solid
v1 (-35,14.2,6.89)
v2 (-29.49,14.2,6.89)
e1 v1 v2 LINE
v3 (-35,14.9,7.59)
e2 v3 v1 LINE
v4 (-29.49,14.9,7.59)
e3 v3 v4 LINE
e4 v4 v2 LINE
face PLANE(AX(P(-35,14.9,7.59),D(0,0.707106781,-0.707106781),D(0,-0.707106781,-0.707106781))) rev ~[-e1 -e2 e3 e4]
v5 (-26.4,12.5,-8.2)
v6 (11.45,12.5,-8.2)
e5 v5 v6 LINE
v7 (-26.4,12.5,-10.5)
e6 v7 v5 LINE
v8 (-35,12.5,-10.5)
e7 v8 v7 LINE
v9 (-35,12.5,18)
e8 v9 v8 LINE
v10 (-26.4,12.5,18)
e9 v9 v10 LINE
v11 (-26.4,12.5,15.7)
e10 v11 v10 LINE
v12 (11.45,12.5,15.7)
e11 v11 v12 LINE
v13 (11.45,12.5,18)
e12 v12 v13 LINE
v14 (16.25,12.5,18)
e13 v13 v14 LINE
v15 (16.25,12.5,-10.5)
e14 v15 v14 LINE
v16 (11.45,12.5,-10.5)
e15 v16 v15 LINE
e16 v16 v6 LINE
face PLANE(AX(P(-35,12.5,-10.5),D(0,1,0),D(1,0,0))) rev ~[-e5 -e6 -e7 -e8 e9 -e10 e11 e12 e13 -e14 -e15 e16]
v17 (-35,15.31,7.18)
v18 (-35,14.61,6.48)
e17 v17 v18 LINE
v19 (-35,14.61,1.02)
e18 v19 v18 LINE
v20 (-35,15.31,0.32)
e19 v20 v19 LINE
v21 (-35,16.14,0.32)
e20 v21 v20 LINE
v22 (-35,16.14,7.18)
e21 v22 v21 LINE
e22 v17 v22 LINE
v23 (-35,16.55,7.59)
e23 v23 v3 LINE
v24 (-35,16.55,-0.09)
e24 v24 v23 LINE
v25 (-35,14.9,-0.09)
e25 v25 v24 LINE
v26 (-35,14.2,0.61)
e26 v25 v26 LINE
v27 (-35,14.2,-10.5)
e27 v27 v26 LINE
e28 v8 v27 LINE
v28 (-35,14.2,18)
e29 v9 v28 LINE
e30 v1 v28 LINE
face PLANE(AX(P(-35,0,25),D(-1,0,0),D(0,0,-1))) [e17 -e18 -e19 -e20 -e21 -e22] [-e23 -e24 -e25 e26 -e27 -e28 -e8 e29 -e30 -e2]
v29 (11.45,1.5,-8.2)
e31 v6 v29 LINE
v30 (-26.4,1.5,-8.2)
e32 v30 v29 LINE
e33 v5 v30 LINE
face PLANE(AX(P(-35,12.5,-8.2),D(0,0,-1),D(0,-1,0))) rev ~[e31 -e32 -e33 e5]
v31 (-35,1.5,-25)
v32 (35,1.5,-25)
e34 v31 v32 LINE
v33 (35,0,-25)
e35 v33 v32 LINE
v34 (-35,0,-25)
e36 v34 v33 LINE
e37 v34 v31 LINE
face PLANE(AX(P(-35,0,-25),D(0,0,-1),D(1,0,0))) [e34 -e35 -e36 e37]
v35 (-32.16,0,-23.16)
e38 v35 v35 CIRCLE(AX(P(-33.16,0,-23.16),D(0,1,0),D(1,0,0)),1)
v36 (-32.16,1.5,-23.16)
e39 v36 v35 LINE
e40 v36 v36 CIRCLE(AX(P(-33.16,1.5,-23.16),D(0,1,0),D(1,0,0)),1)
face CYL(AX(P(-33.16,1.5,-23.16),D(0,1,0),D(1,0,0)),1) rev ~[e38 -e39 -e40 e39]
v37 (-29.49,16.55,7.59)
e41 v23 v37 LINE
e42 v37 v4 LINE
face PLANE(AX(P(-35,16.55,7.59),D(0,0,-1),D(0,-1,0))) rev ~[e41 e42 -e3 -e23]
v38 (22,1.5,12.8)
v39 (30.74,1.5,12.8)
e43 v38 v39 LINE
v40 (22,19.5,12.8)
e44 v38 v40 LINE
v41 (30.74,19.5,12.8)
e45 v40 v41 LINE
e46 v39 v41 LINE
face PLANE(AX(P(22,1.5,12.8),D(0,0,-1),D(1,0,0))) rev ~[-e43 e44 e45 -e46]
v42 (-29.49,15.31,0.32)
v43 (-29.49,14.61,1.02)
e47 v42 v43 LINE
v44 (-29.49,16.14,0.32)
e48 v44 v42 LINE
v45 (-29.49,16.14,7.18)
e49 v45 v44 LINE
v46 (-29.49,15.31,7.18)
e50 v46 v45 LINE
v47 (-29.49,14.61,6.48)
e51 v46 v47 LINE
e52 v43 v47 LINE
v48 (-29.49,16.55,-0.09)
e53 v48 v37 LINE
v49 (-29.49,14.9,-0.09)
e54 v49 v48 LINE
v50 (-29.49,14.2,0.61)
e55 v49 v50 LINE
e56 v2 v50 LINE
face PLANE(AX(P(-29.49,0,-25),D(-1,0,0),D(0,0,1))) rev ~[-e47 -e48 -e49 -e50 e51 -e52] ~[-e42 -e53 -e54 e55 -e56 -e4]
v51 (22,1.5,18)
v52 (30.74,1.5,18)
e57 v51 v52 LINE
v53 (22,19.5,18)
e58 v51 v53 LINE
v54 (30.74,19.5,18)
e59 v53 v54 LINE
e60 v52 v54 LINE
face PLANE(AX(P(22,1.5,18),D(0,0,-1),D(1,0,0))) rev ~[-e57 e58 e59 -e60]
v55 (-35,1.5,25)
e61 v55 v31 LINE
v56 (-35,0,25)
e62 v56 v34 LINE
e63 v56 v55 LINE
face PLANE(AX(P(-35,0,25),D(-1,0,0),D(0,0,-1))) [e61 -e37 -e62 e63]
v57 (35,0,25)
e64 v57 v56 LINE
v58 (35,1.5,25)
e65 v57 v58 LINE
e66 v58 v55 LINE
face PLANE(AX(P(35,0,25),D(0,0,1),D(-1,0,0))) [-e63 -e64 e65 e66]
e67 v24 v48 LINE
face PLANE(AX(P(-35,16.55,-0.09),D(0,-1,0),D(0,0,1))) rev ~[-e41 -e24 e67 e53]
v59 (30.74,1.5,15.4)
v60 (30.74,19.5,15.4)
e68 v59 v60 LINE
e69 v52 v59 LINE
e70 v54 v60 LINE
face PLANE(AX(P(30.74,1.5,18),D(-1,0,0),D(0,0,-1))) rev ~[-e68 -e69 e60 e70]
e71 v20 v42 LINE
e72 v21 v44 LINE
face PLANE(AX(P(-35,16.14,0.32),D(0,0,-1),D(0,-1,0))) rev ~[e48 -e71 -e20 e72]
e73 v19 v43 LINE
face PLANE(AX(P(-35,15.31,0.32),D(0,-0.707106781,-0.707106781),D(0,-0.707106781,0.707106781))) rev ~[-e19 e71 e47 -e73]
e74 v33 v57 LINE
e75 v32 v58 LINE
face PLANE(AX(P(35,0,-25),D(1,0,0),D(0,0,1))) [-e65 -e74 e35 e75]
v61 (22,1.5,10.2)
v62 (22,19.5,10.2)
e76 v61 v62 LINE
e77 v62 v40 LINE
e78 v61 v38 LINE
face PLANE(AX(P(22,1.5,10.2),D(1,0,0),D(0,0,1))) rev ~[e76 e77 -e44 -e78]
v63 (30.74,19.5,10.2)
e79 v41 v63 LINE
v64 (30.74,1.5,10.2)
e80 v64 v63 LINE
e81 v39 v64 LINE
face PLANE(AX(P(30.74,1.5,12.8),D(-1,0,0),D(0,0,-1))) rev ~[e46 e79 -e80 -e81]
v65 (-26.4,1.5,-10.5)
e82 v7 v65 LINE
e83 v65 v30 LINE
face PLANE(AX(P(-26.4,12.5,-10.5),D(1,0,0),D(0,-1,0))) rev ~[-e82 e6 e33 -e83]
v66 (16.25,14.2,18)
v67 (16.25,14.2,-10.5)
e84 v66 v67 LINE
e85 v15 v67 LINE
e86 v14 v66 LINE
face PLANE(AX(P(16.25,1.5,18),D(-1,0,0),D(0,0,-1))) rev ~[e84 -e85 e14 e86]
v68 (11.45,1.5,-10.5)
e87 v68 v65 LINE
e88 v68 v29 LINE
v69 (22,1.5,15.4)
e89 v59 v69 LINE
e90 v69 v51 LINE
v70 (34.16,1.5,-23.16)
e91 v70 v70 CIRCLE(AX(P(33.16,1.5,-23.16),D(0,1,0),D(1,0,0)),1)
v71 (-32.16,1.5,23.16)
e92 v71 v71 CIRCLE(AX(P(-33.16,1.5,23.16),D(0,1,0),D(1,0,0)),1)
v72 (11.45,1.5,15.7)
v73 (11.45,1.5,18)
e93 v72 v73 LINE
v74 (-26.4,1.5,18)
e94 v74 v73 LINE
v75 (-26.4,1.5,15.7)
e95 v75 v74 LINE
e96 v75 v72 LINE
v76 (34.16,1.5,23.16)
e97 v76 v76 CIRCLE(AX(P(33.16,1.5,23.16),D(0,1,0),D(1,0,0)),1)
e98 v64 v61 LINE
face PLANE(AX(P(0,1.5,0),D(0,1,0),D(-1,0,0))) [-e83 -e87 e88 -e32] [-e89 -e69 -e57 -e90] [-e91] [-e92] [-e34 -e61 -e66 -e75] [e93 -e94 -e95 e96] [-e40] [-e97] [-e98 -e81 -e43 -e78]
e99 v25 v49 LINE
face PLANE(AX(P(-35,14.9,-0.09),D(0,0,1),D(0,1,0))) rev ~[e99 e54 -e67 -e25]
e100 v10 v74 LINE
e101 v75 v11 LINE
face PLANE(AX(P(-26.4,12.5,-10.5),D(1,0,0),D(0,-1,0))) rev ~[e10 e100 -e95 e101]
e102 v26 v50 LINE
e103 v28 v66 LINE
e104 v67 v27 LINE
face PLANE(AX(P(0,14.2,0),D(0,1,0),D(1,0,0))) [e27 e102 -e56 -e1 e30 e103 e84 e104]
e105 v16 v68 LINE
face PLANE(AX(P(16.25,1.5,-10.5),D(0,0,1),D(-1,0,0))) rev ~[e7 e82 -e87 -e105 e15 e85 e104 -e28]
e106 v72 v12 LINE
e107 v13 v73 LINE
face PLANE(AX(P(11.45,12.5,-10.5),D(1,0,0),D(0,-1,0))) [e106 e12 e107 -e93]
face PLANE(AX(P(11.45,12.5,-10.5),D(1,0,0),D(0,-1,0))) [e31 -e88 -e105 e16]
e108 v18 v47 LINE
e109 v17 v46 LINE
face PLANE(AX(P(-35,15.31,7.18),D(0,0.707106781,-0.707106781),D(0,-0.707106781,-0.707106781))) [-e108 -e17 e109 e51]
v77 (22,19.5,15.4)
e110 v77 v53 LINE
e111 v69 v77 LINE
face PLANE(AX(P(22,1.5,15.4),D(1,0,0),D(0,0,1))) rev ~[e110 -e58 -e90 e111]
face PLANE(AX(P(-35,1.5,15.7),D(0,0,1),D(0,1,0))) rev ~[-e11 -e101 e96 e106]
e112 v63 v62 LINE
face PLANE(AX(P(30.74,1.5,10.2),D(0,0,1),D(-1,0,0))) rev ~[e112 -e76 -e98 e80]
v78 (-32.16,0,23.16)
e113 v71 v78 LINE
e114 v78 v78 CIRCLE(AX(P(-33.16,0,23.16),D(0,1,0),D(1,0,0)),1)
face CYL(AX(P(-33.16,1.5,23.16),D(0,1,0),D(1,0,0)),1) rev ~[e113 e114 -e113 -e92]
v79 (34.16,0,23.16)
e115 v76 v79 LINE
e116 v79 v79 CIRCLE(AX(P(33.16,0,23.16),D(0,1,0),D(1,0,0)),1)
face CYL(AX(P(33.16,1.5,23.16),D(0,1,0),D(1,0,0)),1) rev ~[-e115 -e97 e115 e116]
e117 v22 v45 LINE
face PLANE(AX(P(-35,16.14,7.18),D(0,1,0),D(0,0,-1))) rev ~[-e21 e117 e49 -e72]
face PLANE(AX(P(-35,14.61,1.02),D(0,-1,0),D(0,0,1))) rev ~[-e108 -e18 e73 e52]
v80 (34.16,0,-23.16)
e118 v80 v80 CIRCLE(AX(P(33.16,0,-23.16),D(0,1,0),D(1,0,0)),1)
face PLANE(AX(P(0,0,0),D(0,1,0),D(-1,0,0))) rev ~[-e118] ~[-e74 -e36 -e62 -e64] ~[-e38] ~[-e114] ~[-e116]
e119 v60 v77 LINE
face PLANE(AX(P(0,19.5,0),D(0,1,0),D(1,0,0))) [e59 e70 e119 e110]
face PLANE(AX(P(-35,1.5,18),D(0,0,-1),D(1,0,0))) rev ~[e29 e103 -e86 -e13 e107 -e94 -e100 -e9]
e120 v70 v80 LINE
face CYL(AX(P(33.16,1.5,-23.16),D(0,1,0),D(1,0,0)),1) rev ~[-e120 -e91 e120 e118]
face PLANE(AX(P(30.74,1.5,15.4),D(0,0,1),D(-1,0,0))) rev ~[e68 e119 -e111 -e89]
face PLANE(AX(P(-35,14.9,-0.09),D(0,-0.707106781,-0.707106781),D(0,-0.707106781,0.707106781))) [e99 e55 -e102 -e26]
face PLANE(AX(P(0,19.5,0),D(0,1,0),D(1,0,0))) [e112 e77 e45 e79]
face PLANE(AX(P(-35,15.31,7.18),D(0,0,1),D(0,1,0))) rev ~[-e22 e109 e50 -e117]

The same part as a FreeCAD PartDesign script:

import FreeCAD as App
import Part
import Sketcher

V = App.Vector
Q = App.Units.Quantity

doc = App.newDocument("Part")
body = doc.addObject("PartDesign::Body", "Body")

sketch1 = body.newObject("Sketcher::SketchObject", "Sketch")
sketch1.AttachmentSupport = (doc.getObject("XZ_Plane"), [""])
sketch1.MapMode = "FlatFace"
sketch1.addGeometry(Part.LineSegment(V(-35, 25, 0), V(35, 25, 0)), False)
sketch1.addGeometry(Part.LineSegment(V(35, 25, 0), V(35, -25, 0)), False)
sketch1.addGeometry(Part.LineSegment(V(35, -25, 0), V(-35, -25, 0)), False)
sketch1.addGeometry(Part.LineSegment(V(-35, -25, 0), V(-35, 25, 0)), False)
sketch1.addConstraint(Sketcher.Constraint("Coincident", 0, 2, 1, 1))
sketch1.addConstraint(Sketcher.Constraint("Coincident", 1, 2, 2, 1))
sketch1.addConstraint(Sketcher.Constraint("Coincident", 2, 2, 3, 1))
sketch1.addConstraint(Sketcher.Constraint("Coincident", 3, 2, 0, 1))
sketch1.addConstraint(Sketcher.Constraint("Horizontal", 0))
sketch1.addConstraint(Sketcher.Constraint("Vertical", 1))
sketch1.addConstraint(Sketcher.Constraint("Horizontal", 2))
sketch1.addConstraint(Sketcher.Constraint("Vertical", 3))
sketch1.addConstraint(Sketcher.Constraint("Symmetric", 0, 2, 2, 2, -1, 1))
sketch1.addConstraint(Sketcher.Constraint("DistanceX", 0, 1, 0, 2, Q("70 mm")))
sketch1.addConstraint(Sketcher.Constraint("DistanceY", 1, 2, 1, 1, Q("50 mm")))
pad1 = body.newObject("PartDesign::Pad", "Pad")
pad1.Profile = sketch1
pad1.Length = 1.5
pad1.Reversed = True

sketch2 = body.newObject("Sketcher::SketchObject", "Sketch001")
sketch2.AttachmentSupport = (doc.getObject("XZ_Plane"), [""])
sketch2.MapMode = "FlatFace"
sketch2.AttachmentOffset = App.Placement(V(0, 0, -1.5), App.Rotation())
sketch2.addGeometry(Part.LineSegment(V(16.25, 18, 0), V(16.25, -10.5, 0)), False)
sketch2.addGeometry(Part.LineSegment(V(16.25, -10.5, 0), V(-35, -10.5, 0)), False)
sketch2.addGeometry(Part.LineSegment(V(-35, -10.5, 0), V(-35, 18, 0)), False)
sketch2.addGeometry(Part.LineSegment(V(-35, 18, 0), V(16.25, 18, 0)), False)
sketch2.addConstraint(Sketcher.Constraint("Coincident", 0, 2, 1, 1))
sketch2.addConstraint(Sketcher.Constraint("Coincident", 1, 2, 2, 1))
sketch2.addConstraint(Sketcher.Constraint("Coincident", 2, 2, 3, 1))
sketch2.addConstraint(Sketcher.Constraint("Coincident", 3, 2, 0, 1))
sketch2.addConstraint(Sketcher.Constraint("Vertical", 0))
sketch2.addConstraint(Sketcher.Constraint("Horizontal", 1))
sketch2.addConstraint(Sketcher.Constraint("Vertical", 2))
sketch2.addConstraint(Sketcher.Constraint("Horizontal", 3))
sketch2.addConstraint(Sketcher.Constraint("DistanceY", 0, 2, 0, 1, Q("28.5 mm")))
sketch2.addConstraint(Sketcher.Constraint("DistanceX", 1, 2, 1, 1, Q("51.25 mm")))
sketch2.addConstraint(Sketcher.Constraint("DistanceX", 1, 2, -1, 1, Q("35 mm")))
sketch2.addConstraint(Sketcher.Constraint("DistanceY", -1, 1, 2, 2, Q("18 mm")))
pad2 = body.newObject("PartDesign::Pad", "Pad001")
pad2.Profile = sketch2
pad2.Length = 12.7
pad2.Reversed = True

sketch3 = body.newObject("Sketcher::SketchObject", "Sketch002")
sketch3.AttachmentSupport = (doc.getObject("XZ_Plane"), [""])
sketch3.MapMode = "FlatFace"
sketch3.AttachmentOffset = App.Placement(V(0, 0, -1.5), App.Rotation())
sketch3.addGeometry(Part.LineSegment(V(30.74, 18, 0), V(30.74, 15.4, 0)), False)
sketch3.addGeometry(Part.LineSegment(V(30.74, 15.4, 0), V(22, 15.4, 0)), False)
sketch3.addGeometry(Part.LineSegment(V(22, 15.4, 0), V(22, 18, 0)), False)
sketch3.addGeometry(Part.LineSegment(V(22, 18, 0), V(30.74, 18, 0)), False)
sketch3.addGeometry(Part.LineSegment(V(30.74, 12.8, 0), V(30.74, 10.2, 0)), False)
sketch3.addGeometry(Part.LineSegment(V(30.74, 10.2, 0), V(22, 10.2, 0)), False)
sketch3.addGeometry(Part.LineSegment(V(22, 10.2, 0), V(22, 12.8, 0)), False)
sketch3.addGeometry(Part.LineSegment(V(22, 12.8, 0), V(30.74, 12.8, 0)), False)
sketch3.addConstraint(Sketcher.Constraint("Coincident", 0, 2, 1, 1))
sketch3.addConstraint(Sketcher.Constraint("Coincident", 1, 2, 2, 1))
sketch3.addConstraint(Sketcher.Constraint("Coincident", 2, 2, 3, 1))
sketch3.addConstraint(Sketcher.Constraint("Coincident", 3, 2, 0, 1))
sketch3.addConstraint(Sketcher.Constraint("Coincident", 4, 2, 5, 1))
sketch3.addConstraint(Sketcher.Constraint("Coincident", 5, 2, 6, 1))
sketch3.addConstraint(Sketcher.Constraint("Coincident", 6, 2, 7, 1))
sketch3.addConstraint(Sketcher.Constraint("Coincident", 7, 2, 4, 1))
sketch3.addConstraint(Sketcher.Constraint("Vertical", 0))
sketch3.addConstraint(Sketcher.Constraint("Horizontal", 1))
sketch3.addConstraint(Sketcher.Constraint("Vertical", 2))
sketch3.addConstraint(Sketcher.Constraint("Horizontal", 3))
sketch3.addConstraint(Sketcher.Constraint("Vertical", 4))
sketch3.addConstraint(Sketcher.Constraint("Horizontal", 5))
sketch3.addConstraint(Sketcher.Constraint("Vertical", 6))
sketch3.addConstraint(Sketcher.Constraint("Horizontal", 7))
sketch3.addConstraint(Sketcher.Constraint("Vertical", 3, 2, 4, 2))
sketch3.addConstraint(Sketcher.Constraint("Vertical", 2, 2, 5, 2))
sketch3.addConstraint(Sketcher.Constraint("Equal", 2, 4))
sketch3.addConstraint(Sketcher.Constraint("DistanceY", 0, 2, 0, 1, Q("2.6 mm")))
sketch3.addConstraint(Sketcher.Constraint("DistanceX", 1, 2, 1, 1, Q("8.74 mm")))
sketch3.addConstraint(Sketcher.Constraint("DistanceY", 6, 2, 1, 2, Q("2.6 mm")))
sketch3.addConstraint(Sketcher.Constraint("DistanceX", -1, 1, 1, 2, Q("22 mm")))
sketch3.addConstraint(Sketcher.Constraint("DistanceY", -1, 1, 2, 2, Q("18 mm")))
pad3 = body.newObject("PartDesign::Pad", "Pad002")
pad3.Profile = sketch3
pad3.Length = 18
pad3.Reversed = True

sketch4 = body.newObject("Sketcher::SketchObject", "Sketch003")
sketch4.AttachmentSupport = (doc.getObject("YZ_Plane"), [""])
sketch4.MapMode = "FlatFace"
sketch4.AttachmentOffset = App.Placement(V(0, 0, -35), App.Rotation())
sketch4.addGeometry(Part.LineSegment(V(16.55, 7.59, 0), V(16.55, -0.09, 0)), False)
sketch4.addGeometry(Part.LineSegment(V(16.55, -0.09, 0), V(14.9, -0.09, 0)), False)
sketch4.addGeometry(Part.LineSegment(V(14.9, -0.09, 0), V(14.2, 0.61, 0)), False)
sketch4.addGeometry(Part.LineSegment(V(14.2, 0.61, 0), V(14.2, 6.89, 0)), False)
sketch4.addGeometry(Part.LineSegment(V(14.2, 6.89, 0), V(14.9, 7.59, 0)), False)
sketch4.addGeometry(Part.LineSegment(V(14.9, 7.59, 0), V(16.55, 7.59, 0)), False)
sketch4.addGeometry(Part.LineSegment(V(16.14, 0.32, 0), V(16.14, 7.18, 0)), False)
sketch4.addGeometry(Part.LineSegment(V(16.14, 7.18, 0), V(15.31, 7.18, 0)), False)
sketch4.addGeometry(Part.LineSegment(V(15.31, 7.18, 0), V(14.61, 6.48, 0)), False)
sketch4.addGeometry(Part.LineSegment(V(14.61, 6.48, 0), V(14.61, 1.02, 0)), False)
sketch4.addGeometry(Part.LineSegment(V(14.61, 1.02, 0), V(15.31, 0.32, 0)), False)
sketch4.addGeometry(Part.LineSegment(V(15.31, 0.32, 0), V(16.14, 0.32, 0)), False)
sketch4.addConstraint(Sketcher.Constraint("Coincident", 0, 2, 1, 1))
sketch4.addConstraint(Sketcher.Constraint("Coincident", 1, 2, 2, 1))
sketch4.addConstraint(Sketcher.Constraint("Coincident", 2, 2, 3, 1))
sketch4.addConstraint(Sketcher.Constraint("Coincident", 3, 2, 4, 1))
sketch4.addConstraint(Sketcher.Constraint("Coincident", 4, 2, 5, 1))
sketch4.addConstraint(Sketcher.Constraint("Coincident", 5, 2, 0, 1))
sketch4.addConstraint(Sketcher.Constraint("Coincident", 6, 2, 7, 1))
sketch4.addConstraint(Sketcher.Constraint("Coincident", 7, 2, 8, 1))
sketch4.addConstraint(Sketcher.Constraint("Coincident", 8, 2, 9, 1))
sketch4.addConstraint(Sketcher.Constraint("Coincident", 9, 2, 10, 1))
sketch4.addConstraint(Sketcher.Constraint("Coincident", 10, 2, 11, 1))
sketch4.addConstraint(Sketcher.Constraint("Coincident", 11, 2, 6, 1))
sketch4.addConstraint(Sketcher.Constraint("Vertical", 0))
sketch4.addConstraint(Sketcher.Constraint("Horizontal", 1))
sketch4.addConstraint(Sketcher.Constraint("Vertical", 3))
sketch4.addConstraint(Sketcher.Constraint("Horizontal", 5))
sketch4.addConstraint(Sketcher.Constraint("Vertical", 6))
sketch4.addConstraint(Sketcher.Constraint("Horizontal", 7))
sketch4.addConstraint(Sketcher.Constraint("Vertical", 9))
sketch4.addConstraint(Sketcher.Constraint("Horizontal", 11))
sketch4.addConstraint(Sketcher.Constraint("Perpendicular", 2, 4))
sketch4.addConstraint(Sketcher.Constraint("Parallel", 4, 8))
sketch4.addConstraint(Sketcher.Constraint("Perpendicular", 8, 10))
sketch4.addConstraint(Sketcher.Constraint("Vertical", 1, 2, 4, 2))
sketch4.addConstraint(Sketcher.Constraint("Vertical", 7, 2, 10, 2))
sketch4.addConstraint(Sketcher.Constraint("Equal", 2, 4))
sketch4.addConstraint(Sketcher.Constraint("Equal", 4, 8))
sketch4.addConstraint(Sketcher.Constraint("DistanceY", 0, 2, 0, 1, Q("7.68 mm")))
sketch4.addConstraint(Sketcher.Constraint("DistanceX", 2, 2, 1, 2, Q("0.7 mm")))
sketch4.addConstraint(Sketcher.Constraint("DistanceX", 2, 2, 0, 2, Q("2.35 mm")))
sketch4.addConstraint(Sketcher.Constraint("DistanceX", 6, 2, 5, 2, Q("0.41 mm")))
sketch4.addConstraint(Sketcher.Constraint("DistanceY", 6, 2, 5, 2, Q("0.41 mm")))
sketch4.addConstraint(Sketcher.Constraint("DistanceX", 4, 2, 7, 2, Q("0.41 mm")))
sketch4.addConstraint(Sketcher.Constraint("DistanceY", 2, 2, 9, 2, Q("0.41 mm")))
sketch4.addConstraint(Sketcher.Constraint("DistanceX", -1, 1, 1, 2, Q("14.9 mm")))
sketch4.addConstraint(Sketcher.Constraint("DistanceY", 0, 2, -1, 1, Q("0.09 mm")))
pad4 = body.newObject("PartDesign::Pad", "Pad003")
pad4.Profile = sketch4
pad4.Length = 5.51

sketch5 = body.newObject("Sketcher::SketchObject", "Sketch004")
sketch5.AttachmentSupport = (doc.getObject("XZ_Plane"), [""])
sketch5.MapMode = "FlatFace"
sketch5.AttachmentOffset = App.Placement(V(0, 0, -1.5), App.Rotation())
sketch5.addGeometry(Part.Circle(V(33.16, 23.16, 0), V(0, 0, 1), 1), False)
sketch5.addGeometry(Part.Circle(V(-33.16, 23.16, 0), V(0, 0, 1), 1), False)
sketch5.addGeometry(Part.Circle(V(-33.16, -23.16, 0), V(0, 0, 1), 1), False)
sketch5.addGeometry(Part.Circle(V(33.16, -23.16, 0), V(0, 0, 1), 1), False)
sketch5.addConstraint(Sketcher.Constraint("Equal", 0, 1))
sketch5.addConstraint(Sketcher.Constraint("Equal", 1, 2))
sketch5.addConstraint(Sketcher.Constraint("Equal", 2, 3))
sketch5.addConstraint(Sketcher.Constraint("Symmetric", 0, 3, 2, 3, -1, 1))
sketch5.addConstraint(Sketcher.Constraint("Symmetric", 1, 3, 3, 3, -1, 1))
sketch5.addConstraint(Sketcher.Constraint("Symmetric", 0, 3, 1, 3, -2))
sketch5.addConstraint(Sketcher.Constraint("Diameter", 0, Q("2 mm")))
sketch5.addConstraint(Sketcher.Constraint("DistanceX", -1, 1, 0, 3, Q("33.16 mm")))
sketch5.addConstraint(Sketcher.Constraint("DistanceY", -1, 1, 0, 3, Q("23.16 mm")))
pocket1 = body.newObject("PartDesign::Pocket", "Pocket")
pocket1.Profile = sketch5
pocket1.Length = 10
pocket1.Reversed = True

sketch6 = body.newObject("Sketcher::SketchObject", "Sketch005")
sketch6.AttachmentSupport = (doc.getObject("YZ_Plane"), [""])
sketch6.MapMode = "FlatFace"
sketch6.AttachmentOffset = App.Placement(V(0, 0, -35), App.Rotation())
sketch6.addGeometry(Part.LineSegment(V(1.5, 15.7, 0), V(12.5, 15.7, 0)), False)
sketch6.addGeometry(Part.LineSegment(V(12.5, 15.7, 0), V(12.5, -8.2, 0)), False)
sketch6.addGeometry(Part.LineSegment(V(12.5, -8.2, 0), V(1.5, -8.2, 0)), False)
sketch6.addGeometry(Part.LineSegment(V(1.5, -8.2, 0), V(1.5, 15.7, 0)), False)
sketch6.addConstraint(Sketcher.Constraint("Coincident", 0, 2, 1, 1))
sketch6.addConstraint(Sketcher.Constraint("Coincident", 1, 2, 2, 1))
sketch6.addConstraint(Sketcher.Constraint("Coincident", 2, 2, 3, 1))
sketch6.addConstraint(Sketcher.Constraint("Coincident", 3, 2, 0, 1))
sketch6.addConstraint(Sketcher.Constraint("Horizontal", 0))
sketch6.addConstraint(Sketcher.Constraint("Vertical", 1))
sketch6.addConstraint(Sketcher.Constraint("Horizontal", 2))
sketch6.addConstraint(Sketcher.Constraint("Vertical", 3))
sketch6.addConstraint(Sketcher.Constraint("DistanceX", 0, 1, 0, 2, Q("11 mm")))
sketch6.addConstraint(Sketcher.Constraint("DistanceY", 1, 2, 1, 1, Q("23.9 mm")))
sketch6.addConstraint(Sketcher.Constraint("DistanceX", -1, 1, 0, 2, Q("12.5 mm")))
sketch6.addConstraint(Sketcher.Constraint("DistanceY", -1, 1, 0, 2, Q("15.7 mm")))
pocket2 = body.newObject("PartDesign::Pocket", "Pocket001")
pocket2.Profile = sketch6
pocket2.Type = "UpToFirst"
pocket2.Reversed = True

sketch7 = body.newObject("Sketcher::SketchObject", "Sketch006")
sketch7.AttachmentSupport = (doc.getObject("XY_Plane"), [""])
sketch7.MapMode = "FlatFace"
sketch7.AttachmentOffset = App.Placement(V(0, 0, -10.5), App.Rotation())
sketch7.addGeometry(Part.LineSegment(V(-26.4, 1.5, 0), V(-35, 1.5, 0)), False)
sketch7.addGeometry(Part.LineSegment(V(-35, 1.5, 0), V(-35, 12.5, 0)), False)
sketch7.addGeometry(Part.LineSegment(V(-35, 12.5, 0), V(-26.4, 12.5, 0)), False)
sketch7.addGeometry(Part.LineSegment(V(-26.4, 12.5, 0), V(-26.4, 1.5, 0)), False)
sketch7.addConstraint(Sketcher.Constraint("Coincident", 0, 2, 1, 1))
sketch7.addConstraint(Sketcher.Constraint("Coincident", 1, 2, 2, 1))
sketch7.addConstraint(Sketcher.Constraint("Coincident", 2, 2, 3, 1))
sketch7.addConstraint(Sketcher.Constraint("Coincident", 3, 2, 0, 1))
sketch7.addConstraint(Sketcher.Constraint("Horizontal", 0))
sketch7.addConstraint(Sketcher.Constraint("Vertical", 1))
sketch7.addConstraint(Sketcher.Constraint("Horizontal", 2))
sketch7.addConstraint(Sketcher.Constraint("Vertical", 3))
sketch7.addConstraint(Sketcher.Constraint("DistanceX", 0, 2, 0, 1, Q("8.6 mm")))
sketch7.addConstraint(Sketcher.Constraint("DistanceY", 1, 1, 1, 2, Q("11 mm")))
sketch7.addConstraint(Sketcher.Constraint("DistanceX", 0, 2, -1, 1, Q("35 mm")))
sketch7.addConstraint(Sketcher.Constraint("DistanceY", -1, 1, 0, 2, Q("1.5 mm")))
pocket3 = body.newObject("PartDesign::Pocket", "Pocket002")
pocket3.Profile = sketch7
pocket3.Type = "ThroughAll"
pocket3.Reversed = True

sketch8 = body.newObject("Sketcher::SketchObject", "Sketch007")
sketch8.AttachmentSupport = (doc.getObject("XY_Plane"), [""])
sketch8.MapMode = "FlatFace"
sketch8.AttachmentOffset = App.Placement(V(0, 0, -10.5), App.Rotation())
sketch8.addGeometry(Part.LineSegment(V(11.45, 1.5, 0), V(11.45, 12.5, 0)), False)
sketch8.addGeometry(Part.LineSegment(V(11.45, 12.5, 0), V(16.25, 12.5, 0)), False)
sketch8.addGeometry(Part.LineSegment(V(16.25, 12.5, 0), V(16.25, 1.5, 0)), False)
sketch8.addGeometry(Part.LineSegment(V(16.25, 1.5, 0), V(11.45, 1.5, 0)), False)
sketch8.addConstraint(Sketcher.Constraint("Coincident", 0, 2, 1, 1))
sketch8.addConstraint(Sketcher.Constraint("Coincident", 1, 2, 2, 1))
sketch8.addConstraint(Sketcher.Constraint("Coincident", 2, 2, 3, 1))
sketch8.addConstraint(Sketcher.Constraint("Coincident", 3, 2, 0, 1))
sketch8.addConstraint(Sketcher.Constraint("Vertical", 0))
sketch8.addConstraint(Sketcher.Constraint("Horizontal", 1))
sketch8.addConstraint(Sketcher.Constraint("Vertical", 2))
sketch8.addConstraint(Sketcher.Constraint("Horizontal", 3))
sketch8.addConstraint(Sketcher.Constraint("DistanceX", 1, 1, 1, 2, Q("4.8 mm")))
sketch8.addConstraint(Sketcher.Constraint("DistanceY", 0, 1, 0, 2, Q("11 mm")))
sketch8.addConstraint(Sketcher.Constraint("DistanceY", -1, 1, 0, 2, Q("12.5 mm")))
sketch8.addConstraint(Sketcher.Constraint("DistanceX", -1, 1, 0, 2, Q("11.45 mm")))
pocket4 = body.newObject("PartDesign::Pocket", "Pocket003")
pocket4.Profile = sketch8
pocket4.Type = "ThroughAll"
pocket4.Reversed = True

doc.recompute()
